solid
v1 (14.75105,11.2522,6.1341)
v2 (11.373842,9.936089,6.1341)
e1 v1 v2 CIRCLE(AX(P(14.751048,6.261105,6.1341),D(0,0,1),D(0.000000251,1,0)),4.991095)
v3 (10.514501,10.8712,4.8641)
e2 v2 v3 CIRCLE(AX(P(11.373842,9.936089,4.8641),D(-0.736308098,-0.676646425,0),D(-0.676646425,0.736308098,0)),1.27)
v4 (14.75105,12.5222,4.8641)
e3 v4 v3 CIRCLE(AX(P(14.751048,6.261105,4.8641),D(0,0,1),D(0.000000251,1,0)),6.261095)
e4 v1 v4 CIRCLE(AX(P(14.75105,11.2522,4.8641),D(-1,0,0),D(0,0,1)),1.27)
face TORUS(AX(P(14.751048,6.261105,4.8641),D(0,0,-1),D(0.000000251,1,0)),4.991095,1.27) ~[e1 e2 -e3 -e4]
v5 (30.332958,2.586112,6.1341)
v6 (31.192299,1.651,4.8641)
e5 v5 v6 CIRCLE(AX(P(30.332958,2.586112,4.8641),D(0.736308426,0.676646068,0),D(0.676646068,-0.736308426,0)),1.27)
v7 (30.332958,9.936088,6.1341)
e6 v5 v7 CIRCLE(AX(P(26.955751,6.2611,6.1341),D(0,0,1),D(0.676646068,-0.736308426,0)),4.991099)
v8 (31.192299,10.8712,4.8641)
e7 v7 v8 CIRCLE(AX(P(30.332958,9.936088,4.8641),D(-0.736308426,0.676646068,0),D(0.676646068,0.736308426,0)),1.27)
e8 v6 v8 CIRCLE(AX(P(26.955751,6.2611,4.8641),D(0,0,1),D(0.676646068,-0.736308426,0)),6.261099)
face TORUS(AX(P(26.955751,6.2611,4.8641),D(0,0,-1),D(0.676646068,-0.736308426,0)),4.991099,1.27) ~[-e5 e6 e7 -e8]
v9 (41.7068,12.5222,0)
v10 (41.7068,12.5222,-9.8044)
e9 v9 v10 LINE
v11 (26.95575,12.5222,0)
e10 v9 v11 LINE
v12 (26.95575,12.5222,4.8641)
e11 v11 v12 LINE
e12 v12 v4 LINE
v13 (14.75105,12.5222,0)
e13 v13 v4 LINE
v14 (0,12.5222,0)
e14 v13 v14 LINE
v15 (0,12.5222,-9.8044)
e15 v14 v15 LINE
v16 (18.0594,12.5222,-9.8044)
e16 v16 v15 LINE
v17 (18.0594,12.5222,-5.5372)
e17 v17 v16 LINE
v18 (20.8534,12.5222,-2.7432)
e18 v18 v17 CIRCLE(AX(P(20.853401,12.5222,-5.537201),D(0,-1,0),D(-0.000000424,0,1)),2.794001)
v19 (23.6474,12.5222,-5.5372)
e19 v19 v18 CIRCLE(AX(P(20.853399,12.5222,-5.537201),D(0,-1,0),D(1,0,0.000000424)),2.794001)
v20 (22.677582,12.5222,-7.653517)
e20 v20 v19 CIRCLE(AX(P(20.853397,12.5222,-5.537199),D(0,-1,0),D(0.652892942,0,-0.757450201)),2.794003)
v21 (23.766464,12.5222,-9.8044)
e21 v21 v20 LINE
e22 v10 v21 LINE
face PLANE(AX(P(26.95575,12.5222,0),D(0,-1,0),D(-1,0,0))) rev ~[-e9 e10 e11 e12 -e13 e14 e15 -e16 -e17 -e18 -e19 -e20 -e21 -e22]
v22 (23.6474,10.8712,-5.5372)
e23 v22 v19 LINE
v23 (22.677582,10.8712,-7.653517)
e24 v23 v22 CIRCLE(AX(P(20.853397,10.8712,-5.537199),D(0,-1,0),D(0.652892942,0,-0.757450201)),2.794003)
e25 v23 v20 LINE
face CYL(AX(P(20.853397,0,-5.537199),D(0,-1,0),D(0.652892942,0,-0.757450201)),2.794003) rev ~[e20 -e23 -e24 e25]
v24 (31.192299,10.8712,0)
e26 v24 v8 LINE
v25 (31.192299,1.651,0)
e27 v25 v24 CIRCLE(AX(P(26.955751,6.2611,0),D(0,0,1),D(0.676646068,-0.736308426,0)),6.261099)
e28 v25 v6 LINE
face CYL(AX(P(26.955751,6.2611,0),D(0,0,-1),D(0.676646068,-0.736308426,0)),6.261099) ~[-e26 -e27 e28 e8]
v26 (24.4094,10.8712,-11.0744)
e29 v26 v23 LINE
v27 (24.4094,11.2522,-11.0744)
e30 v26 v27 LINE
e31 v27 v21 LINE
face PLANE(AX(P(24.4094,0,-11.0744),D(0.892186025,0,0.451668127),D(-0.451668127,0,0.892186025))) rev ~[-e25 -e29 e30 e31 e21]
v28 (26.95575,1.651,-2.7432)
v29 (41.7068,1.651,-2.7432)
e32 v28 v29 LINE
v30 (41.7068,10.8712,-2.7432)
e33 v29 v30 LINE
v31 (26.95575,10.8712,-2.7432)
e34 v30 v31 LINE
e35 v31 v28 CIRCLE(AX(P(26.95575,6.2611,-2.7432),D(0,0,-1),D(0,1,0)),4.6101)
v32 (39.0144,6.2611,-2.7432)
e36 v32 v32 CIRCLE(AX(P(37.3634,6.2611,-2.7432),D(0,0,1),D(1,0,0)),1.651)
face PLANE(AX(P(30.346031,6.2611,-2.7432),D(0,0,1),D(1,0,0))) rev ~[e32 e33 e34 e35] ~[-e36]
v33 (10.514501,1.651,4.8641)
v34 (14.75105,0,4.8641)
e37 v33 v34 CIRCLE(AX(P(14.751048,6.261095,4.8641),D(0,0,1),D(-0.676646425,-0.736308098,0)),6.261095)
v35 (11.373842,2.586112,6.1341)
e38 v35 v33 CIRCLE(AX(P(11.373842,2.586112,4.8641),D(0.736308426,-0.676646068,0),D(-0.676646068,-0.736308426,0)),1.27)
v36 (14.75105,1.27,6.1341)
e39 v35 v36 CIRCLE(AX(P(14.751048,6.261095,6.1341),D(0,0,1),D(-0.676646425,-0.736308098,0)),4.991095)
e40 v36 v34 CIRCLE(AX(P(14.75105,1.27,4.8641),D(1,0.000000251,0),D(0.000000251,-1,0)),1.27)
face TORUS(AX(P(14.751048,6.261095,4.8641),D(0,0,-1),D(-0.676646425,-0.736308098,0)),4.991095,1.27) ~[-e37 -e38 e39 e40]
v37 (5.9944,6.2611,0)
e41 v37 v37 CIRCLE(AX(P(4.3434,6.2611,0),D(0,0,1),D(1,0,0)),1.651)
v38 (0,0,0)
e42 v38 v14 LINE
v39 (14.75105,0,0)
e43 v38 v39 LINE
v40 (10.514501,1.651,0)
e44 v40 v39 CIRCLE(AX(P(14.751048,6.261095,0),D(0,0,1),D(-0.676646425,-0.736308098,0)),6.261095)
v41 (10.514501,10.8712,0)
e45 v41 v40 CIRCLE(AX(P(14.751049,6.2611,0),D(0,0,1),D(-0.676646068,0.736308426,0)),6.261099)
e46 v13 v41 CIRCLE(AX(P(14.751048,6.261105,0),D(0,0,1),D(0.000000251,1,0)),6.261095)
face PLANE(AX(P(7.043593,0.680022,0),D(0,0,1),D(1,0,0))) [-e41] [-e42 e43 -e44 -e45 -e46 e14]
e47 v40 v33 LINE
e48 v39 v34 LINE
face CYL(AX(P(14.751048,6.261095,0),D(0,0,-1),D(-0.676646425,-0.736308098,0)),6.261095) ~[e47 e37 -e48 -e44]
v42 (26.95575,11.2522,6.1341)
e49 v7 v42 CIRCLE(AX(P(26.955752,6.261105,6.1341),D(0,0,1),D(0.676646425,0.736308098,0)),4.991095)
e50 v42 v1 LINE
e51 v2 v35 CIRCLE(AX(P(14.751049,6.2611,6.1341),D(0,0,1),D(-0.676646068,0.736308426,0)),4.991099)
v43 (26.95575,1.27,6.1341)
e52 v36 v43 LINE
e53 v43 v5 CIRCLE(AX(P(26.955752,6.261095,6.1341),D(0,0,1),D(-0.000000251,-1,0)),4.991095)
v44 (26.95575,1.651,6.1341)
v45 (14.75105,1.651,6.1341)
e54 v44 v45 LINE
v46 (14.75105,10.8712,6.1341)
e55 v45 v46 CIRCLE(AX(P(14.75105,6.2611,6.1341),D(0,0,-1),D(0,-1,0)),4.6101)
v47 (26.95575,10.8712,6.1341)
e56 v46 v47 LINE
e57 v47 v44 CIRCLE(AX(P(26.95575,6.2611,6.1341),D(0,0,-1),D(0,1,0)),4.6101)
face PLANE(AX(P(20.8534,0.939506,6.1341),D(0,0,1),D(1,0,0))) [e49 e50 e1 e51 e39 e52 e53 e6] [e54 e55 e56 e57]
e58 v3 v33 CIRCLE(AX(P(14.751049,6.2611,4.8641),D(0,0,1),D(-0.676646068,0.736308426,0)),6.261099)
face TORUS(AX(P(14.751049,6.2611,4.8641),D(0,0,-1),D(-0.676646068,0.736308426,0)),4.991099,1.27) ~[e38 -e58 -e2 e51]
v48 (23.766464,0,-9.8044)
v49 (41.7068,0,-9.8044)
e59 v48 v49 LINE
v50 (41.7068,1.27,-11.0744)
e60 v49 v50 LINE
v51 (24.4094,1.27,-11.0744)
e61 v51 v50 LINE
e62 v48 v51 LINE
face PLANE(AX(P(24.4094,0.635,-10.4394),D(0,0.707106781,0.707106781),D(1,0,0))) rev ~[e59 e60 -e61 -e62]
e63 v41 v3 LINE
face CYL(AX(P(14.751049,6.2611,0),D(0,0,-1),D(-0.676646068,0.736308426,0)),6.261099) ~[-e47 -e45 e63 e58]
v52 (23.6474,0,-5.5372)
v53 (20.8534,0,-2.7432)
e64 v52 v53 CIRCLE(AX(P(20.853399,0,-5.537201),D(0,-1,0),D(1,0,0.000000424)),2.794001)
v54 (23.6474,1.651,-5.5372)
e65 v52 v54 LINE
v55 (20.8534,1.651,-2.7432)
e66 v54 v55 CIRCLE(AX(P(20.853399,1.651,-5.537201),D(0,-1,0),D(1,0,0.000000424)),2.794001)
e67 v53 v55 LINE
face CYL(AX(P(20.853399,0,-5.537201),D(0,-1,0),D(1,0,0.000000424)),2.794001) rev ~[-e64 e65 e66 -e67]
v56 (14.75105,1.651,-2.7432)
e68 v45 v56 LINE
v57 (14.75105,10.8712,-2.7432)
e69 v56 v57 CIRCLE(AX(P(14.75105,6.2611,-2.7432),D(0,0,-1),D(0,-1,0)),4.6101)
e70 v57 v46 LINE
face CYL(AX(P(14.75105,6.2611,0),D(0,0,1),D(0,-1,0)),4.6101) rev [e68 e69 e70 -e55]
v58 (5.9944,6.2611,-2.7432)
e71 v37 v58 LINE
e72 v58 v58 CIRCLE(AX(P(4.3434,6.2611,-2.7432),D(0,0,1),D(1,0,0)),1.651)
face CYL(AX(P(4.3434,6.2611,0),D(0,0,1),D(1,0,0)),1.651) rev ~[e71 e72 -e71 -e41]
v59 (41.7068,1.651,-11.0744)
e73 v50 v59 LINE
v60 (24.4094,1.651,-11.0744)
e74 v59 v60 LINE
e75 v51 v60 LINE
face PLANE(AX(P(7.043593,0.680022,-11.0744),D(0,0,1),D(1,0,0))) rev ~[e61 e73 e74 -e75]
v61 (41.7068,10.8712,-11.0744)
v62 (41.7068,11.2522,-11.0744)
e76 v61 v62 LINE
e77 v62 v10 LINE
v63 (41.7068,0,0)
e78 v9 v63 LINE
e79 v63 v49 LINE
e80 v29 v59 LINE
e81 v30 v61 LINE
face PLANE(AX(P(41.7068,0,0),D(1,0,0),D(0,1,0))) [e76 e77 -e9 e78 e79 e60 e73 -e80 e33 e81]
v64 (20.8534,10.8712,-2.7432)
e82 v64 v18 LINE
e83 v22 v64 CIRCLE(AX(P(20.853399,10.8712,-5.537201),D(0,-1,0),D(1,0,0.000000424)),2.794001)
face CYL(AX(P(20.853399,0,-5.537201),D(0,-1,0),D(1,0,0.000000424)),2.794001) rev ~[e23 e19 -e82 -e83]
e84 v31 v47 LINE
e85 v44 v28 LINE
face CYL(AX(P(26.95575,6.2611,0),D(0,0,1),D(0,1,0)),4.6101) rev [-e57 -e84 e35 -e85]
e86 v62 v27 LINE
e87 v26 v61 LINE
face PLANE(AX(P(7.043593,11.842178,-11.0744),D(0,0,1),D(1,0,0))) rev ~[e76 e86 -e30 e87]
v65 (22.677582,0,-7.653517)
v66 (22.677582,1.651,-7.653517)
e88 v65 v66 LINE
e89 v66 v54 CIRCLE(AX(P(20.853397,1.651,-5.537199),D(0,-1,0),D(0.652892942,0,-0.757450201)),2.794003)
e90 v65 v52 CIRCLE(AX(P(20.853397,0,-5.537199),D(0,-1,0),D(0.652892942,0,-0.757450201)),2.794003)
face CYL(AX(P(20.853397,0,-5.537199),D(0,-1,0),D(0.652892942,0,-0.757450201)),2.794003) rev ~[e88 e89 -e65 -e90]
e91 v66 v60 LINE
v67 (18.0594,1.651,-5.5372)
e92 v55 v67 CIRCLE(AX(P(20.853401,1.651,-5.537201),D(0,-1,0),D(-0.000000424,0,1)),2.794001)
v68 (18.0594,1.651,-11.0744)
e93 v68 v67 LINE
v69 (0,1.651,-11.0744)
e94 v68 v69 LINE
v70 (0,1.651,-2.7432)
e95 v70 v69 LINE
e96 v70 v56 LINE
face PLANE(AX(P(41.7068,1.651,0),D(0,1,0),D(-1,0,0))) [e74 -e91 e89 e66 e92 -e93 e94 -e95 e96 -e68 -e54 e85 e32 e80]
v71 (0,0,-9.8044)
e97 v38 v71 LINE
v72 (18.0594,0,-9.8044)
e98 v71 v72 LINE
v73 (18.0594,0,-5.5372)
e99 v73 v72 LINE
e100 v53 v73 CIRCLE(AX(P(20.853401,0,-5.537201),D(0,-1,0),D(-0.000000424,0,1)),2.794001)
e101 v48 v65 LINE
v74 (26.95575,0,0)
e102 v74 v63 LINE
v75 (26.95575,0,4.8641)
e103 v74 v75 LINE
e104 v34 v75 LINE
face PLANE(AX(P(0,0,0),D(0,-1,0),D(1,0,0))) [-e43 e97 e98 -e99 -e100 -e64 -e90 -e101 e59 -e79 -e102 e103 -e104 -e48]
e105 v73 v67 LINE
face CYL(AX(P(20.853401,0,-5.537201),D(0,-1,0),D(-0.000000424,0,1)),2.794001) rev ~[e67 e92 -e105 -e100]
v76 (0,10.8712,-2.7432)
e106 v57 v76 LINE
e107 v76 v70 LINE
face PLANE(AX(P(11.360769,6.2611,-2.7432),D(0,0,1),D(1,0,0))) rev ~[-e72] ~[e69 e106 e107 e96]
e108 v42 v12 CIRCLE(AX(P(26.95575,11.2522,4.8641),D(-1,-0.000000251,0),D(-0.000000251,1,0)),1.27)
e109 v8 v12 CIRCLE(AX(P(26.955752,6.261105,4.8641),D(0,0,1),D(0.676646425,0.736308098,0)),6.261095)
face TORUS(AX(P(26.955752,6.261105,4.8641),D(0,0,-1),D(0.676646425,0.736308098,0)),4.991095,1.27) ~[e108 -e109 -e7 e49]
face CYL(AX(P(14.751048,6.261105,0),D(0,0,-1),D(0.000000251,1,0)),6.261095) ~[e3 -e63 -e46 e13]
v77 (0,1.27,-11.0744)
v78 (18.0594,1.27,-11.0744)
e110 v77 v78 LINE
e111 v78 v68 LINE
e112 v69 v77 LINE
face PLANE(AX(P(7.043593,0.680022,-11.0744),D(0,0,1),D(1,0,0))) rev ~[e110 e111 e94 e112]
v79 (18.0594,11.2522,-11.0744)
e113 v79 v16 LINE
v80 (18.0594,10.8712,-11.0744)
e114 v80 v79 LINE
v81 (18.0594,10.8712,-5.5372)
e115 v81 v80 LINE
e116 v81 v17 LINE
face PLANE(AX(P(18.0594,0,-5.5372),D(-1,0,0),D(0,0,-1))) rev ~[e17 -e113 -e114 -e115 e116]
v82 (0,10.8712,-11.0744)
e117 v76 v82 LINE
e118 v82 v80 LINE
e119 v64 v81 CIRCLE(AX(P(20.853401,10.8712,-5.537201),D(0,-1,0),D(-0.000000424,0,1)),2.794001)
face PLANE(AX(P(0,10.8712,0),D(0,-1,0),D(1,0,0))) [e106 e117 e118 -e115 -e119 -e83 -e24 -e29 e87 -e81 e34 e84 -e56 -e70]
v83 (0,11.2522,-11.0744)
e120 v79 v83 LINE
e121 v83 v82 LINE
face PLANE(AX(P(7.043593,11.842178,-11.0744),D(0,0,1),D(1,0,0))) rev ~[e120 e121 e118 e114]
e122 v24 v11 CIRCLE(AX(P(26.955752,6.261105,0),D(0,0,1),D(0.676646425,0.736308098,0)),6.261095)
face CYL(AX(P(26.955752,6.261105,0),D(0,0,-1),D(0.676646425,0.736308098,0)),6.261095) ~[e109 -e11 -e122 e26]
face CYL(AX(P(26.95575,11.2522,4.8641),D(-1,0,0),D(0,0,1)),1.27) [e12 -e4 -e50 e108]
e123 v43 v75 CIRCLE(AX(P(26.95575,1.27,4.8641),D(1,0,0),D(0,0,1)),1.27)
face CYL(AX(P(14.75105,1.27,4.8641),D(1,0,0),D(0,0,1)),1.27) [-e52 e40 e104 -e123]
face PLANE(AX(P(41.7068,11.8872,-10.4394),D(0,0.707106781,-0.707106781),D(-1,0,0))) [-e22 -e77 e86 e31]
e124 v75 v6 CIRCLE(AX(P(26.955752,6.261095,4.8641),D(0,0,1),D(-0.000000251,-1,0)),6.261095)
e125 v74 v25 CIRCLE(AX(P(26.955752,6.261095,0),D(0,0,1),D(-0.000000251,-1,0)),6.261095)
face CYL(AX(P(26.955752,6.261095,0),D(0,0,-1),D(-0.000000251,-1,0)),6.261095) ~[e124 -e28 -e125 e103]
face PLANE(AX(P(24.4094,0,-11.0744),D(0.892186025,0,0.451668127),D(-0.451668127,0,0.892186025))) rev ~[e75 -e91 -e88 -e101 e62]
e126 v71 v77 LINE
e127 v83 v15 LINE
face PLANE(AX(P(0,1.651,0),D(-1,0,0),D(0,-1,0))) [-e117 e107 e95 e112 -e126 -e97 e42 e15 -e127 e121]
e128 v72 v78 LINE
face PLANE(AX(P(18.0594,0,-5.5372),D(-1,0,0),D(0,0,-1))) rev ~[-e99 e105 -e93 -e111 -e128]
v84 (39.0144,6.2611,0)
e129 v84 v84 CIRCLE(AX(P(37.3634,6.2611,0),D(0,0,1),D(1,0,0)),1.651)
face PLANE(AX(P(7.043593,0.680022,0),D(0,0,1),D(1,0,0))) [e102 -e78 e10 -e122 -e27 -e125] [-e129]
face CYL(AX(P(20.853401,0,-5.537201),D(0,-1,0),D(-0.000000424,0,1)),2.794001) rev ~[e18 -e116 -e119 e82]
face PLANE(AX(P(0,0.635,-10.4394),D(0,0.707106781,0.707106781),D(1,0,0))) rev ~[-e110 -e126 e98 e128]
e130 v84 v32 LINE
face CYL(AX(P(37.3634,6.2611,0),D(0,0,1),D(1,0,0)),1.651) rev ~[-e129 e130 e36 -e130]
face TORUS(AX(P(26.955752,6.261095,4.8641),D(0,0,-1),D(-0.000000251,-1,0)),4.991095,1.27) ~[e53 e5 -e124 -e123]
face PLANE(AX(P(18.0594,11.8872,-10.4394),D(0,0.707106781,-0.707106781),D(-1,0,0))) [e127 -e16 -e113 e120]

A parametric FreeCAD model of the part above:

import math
import FreeCAD as App
import Part
import Sketcher
Q = App.Units.Quantity


def edges_at(feature, points):
    """Names of the edges that pass closest to the given points."""
    edges = feature.Shape.Edges
    near = lambda p: min(range(len(edges)), key=lambda i: edges[i].distToShape(Part.Vertex(*p))[0])
    return sorted({f"Edge{near(p) + 1}" for p in points})


def add_polygon(sketch, points):
    """Adds a closed chain of lines whose ends are joined by coincident constraints."""
    first, n = sketch.GeometryCount, len(points)
    for a, b in zip(points, points[1:] + points[:1]):
        sketch.addGeometry(Part.LineSegment(App.Vector(*a, 0), App.Vector(*b, 0)), False)
    for i in range(n):
        sketch.addConstraint(Sketcher.Constraint("Coincident", first + i, 2, first + (i + 1) % n, 1))

doc = App.newDocument("Part")
body = doc.addObject("PartDesign::Body", "Body")

sketch1 = doc.addObject("Sketcher::SketchObject", "Sketch")
body.addObject(sketch1)
sketch1.AttachmentSupport = (doc.XY_Plane, [""])
sketch1.MapMode = "FlatFace"
sketch1.addGeometry([
    Part.ArcOfCircle(Part.Circle(App.Vector(14.8, 6.3, 0), App.Vector(0, 0, 1), 6.3), math.radians(-133), math.radians(-90)),
    Part.LineSegment(App.Vector(14.8, 0, 0), App.Vector(27, 0, 0)),
    Part.ArcOfCircle(Part.Circle(App.Vector(27, 6.3, 0), App.Vector(0, 0, 1), 6.3), math.radians(-90), math.radians(-47)),
    Part.ArcOfCircle(Part.Circle(App.Vector(27, 6.3, 0), App.Vector(0, 0, 1), 6.3), math.radians(-47), math.radians(47)),
    Part.ArcOfCircle(Part.Circle(App.Vector(27, 6.3, 0), App.Vector(0, 0, 1), 6.3), math.radians(47), math.radians(90)),
    Part.LineSegment(App.Vector(27, 12.5, 0), App.Vector(14.8, 12.5, 0)),
    Part.ArcOfCircle(Part.Circle(App.Vector(14.8, 6.3, 0), App.Vector(0, 0, 1), 6.3), math.radians(90), math.radians(133)),
    Part.ArcOfCircle(Part.Circle(App.Vector(14.8, 6.3, 0), App.Vector(0, 0, 1), 6.3), math.radians(133), math.radians(227)),
    Part.LineSegment(App.Vector(27, 1.7, 0), App.Vector(14.8, 1.7, 0)),
    Part.ArcOfCircle(Part.Circle(App.Vector(14.8, 6.3, 0), App.Vector(0, 0, 1), 4.6), math.radians(90), math.radians(270)),
    Part.LineSegment(App.Vector(14.8, 10.9, 0), App.Vector(27, 10.9, 0)),
    Part.ArcOfCircle(Part.Circle(App.Vector(27, 6.3, 0), App.Vector(0, 0, 1), 4.6), math.radians(-90), math.radians(90)),
], False)
sketch1.addConstraint([
    Sketcher.Constraint("Tangent", 0, 2, 1, 1),
    Sketcher.Constraint("Tangent", 1, 2, 2, 1),
    Sketcher.Constraint("Tangent", 2, 2, 3, 1),
    Sketcher.Constraint("Tangent", 3, 2, 4, 1),
    Sketcher.Constraint("Tangent", 4, 2, 5, 1),
    Sketcher.Constraint("Tangent", 5, 2, 6, 1),
    Sketcher.Constraint("Tangent", 6, 2, 7, 1),
    Sketcher.Constraint("Tangent", 7, 2, 0, 1),
    Sketcher.Constraint("Tangent", 8, 2, 9, 2),
    Sketcher.Constraint("Tangent", 9, 1, 10, 1),
    Sketcher.Constraint("Tangent", 10, 2, 11, 2),
    Sketcher.Constraint("Tangent", 11, 1, 8, 1),
    Sketcher.Constraint("Horizontal", 1),
    Sketcher.Constraint("Horizontal", 5),
    Sketcher.Constraint("Horizontal", 8),
    Sketcher.Constraint("Horizontal", 10),
    Sketcher.Constraint("Coincident", 9, 3, 0, 3),
    Sketcher.Constraint("Coincident", 11, 3, 2, 3),
    Sketcher.Constraint("Equal", 2, 4),
    Sketcher.Constraint("Equal", 4, 6),
    Sketcher.Constraint("PointOnObject", 0, 2, -1),
    Sketcher.Constraint("Horizontal", 3, 3, 9, 3),
    Sketcher.Constraint("Horizontal", 3, 2, 6, 2),
    Sketcher.Constraint("Horizontal", 2, 2, 7, 2),
    Sketcher.Constraint("Horizontal", 7, 2, 8, 2),
    Sketcher.Constraint("Horizontal", 6, 2, 9, 1),
    Sketcher.Constraint("Radius", 3, Q("0.2465 in")),
    Sketcher.Constraint("Radius", 9, Q("0.1815 in")),
    Sketcher.Constraint("DistanceX", 1, 1, 1, 2, Q("0.4805 in")),
    Sketcher.Constraint("DistanceX", -1, 1, 2, 2, 31.192299),
])
pad1 = doc.addObject("PartDesign::Pad", "Pad")
body.addObject(pad1)
pad1.Profile = sketch1
pad1.Length = Q("0.2415 in")

sketch2 = doc.addObject("Sketcher::SketchObject", "Sketch001")
body.addObject(sketch2)
sketch2.AttachmentSupport = (doc.XY_Plane, [""])
sketch2.MapMode = "FlatFace"
add_polygon(sketch2, [(0, 1.7), (0, 0), (41.7, 0), (41.7, 1.7)])
add_polygon(sketch2, [(0, 12.5), (0, 10.9), (41.7, 10.9), (41.7, 12.5)])
sketch2.addConstraint([
    Sketcher.Constraint("Vertical", 0),
    Sketcher.Constraint("Horizontal", 1),
    Sketcher.Constraint("Vertical", 2),
    Sketcher.Constraint("Horizontal", 3),
    Sketcher.Constraint("Vertical", 4),
    Sketcher.Constraint("Horizontal", 5),
    Sketcher.Constraint("Vertical", 6),
    Sketcher.Constraint("Horizontal", 7),
    Sketcher.Constraint("Coincident", 0, 2, -1, 1),
    Sketcher.Constraint("PointOnObject", 4, 2, -2),
    Sketcher.Constraint("Vertical", 2, 2, 5, 2),
    Sketcher.Constraint("Equal", 2, 4),
    Sketcher.Constraint("DistanceX", 1, 1, 1, 2, Q("1.642 in")),
    Sketcher.Constraint("DistanceY", 0, 2, 0, 1, Q("0.065 in")),
    Sketcher.Constraint("DistanceY", -1, 1, 4, 2, Q("0.428 in")),
])
pad2 = doc.addObject("PartDesign::Pad", "Pad001")
body.addObject(pad2)
pad2.Profile = sketch2
pad2.Length = Q("0.436 in")
pad2.Reversed = True

sketch3 = doc.addObject("Sketcher::SketchObject", "Sketch002")
body.addObject(sketch3)
sketch3.AttachmentSupport = (doc.XY_Plane, [""])
sketch3.MapMode = "FlatFace"
sketch3.addGeometry([
    Part.LineSegment(App.Vector(14.8, 10.9, 0), App.Vector(0, 10.9, 0)),
    Part.LineSegment(App.Vector(0, 10.9, 0), App.Vector(0, 1.7, 0)),
    Part.LineSegment(App.Vector(0, 1.7, 0), App.Vector(14.8, 1.7, 0)),
    Part.ArcOfCircle(Part.Circle(App.Vector(14.8, 6.3, 0), App.Vector(0, 0, 1), 4.6), math.radians(90), math.radians(270)),
    Part.Circle(App.Vector(4.3, 6.3, 0), App.Vector(0, 0, 1), 1.7),
    Part.ArcOfCircle(Part.Circle(App.Vector(27, 6.3, 0), App.Vector(0, 0, 1), 4.6), math.radians(-90), math.radians(90)),
    Part.LineSegment(App.Vector(27, 1.7, 0), App.Vector(41.7, 1.7, 0)),
    Part.LineSegment(App.Vector(41.7, 1.7, 0), App.Vector(41.7, 10.9, 0)),
    Part.LineSegment(App.Vector(41.7, 10.9, 0), App.Vector(27, 10.9, 0)),
    Part.Circle(App.Vector(37.4, 6.3, 0), App.Vector(0, 0, 1), 1.7),
], False)
sketch3.addConstraint([
    Sketcher.Constraint("Coincident", 0, 2, 1, 1),
    Sketcher.Constraint("Coincident", 1, 2, 2, 1),
    Sketcher.Constraint("Tangent", 2, 2, 3, 2),
    Sketcher.Constraint("Tangent", 3, 1, 0, 1),
    Sketcher.Constraint("Tangent", 5, 1, 6, 1),
    Sketcher.Constraint("Coincident", 6, 2, 7, 1),
    Sketcher.Constraint("Coincident", 7, 2, 8, 1),
    Sketcher.Constraint("Tangent", 8, 2, 5, 2),
    Sketcher.Constraint("Horizontal", 0),
    Sketcher.Constraint("Vertical", 1),
    Sketcher.Constraint("Horizontal", 2),
    Sketcher.Constraint("Horizontal", 6),
    Sketcher.Constraint("Vertical", 7),
    Sketcher.Constraint("Horizontal", 8),
    Sketcher.Constraint("Equal", 3, 5),
    Sketcher.Constraint("Equal", 4, 9),
    Sketcher.Constraint("PointOnObject", 0, 2, -2),
    Sketcher.Constraint("Horizontal", 3, 3, 4, 3),
    Sketcher.Constraint("Horizontal", 4, 3, 5, 3),
    Sketcher.Constraint("Horizontal", 5, 3, 9, 3),
    Sketcher.Constraint("Equal", 2, 6),
    Sketcher.Constraint("Diameter", 4, Q("0.13 in")),
    Sketcher.Constraint("Radius", 3, Q("0.1815 in")),
    Sketcher.Constraint("DistanceX", 4, 3, 9, 3, Q("1.3 in")),
    Sketcher.Constraint("DistanceX", -1, 1, 4, 3, Q("0.171 in")),
    Sketcher.Constraint("DistanceY", -1, 1, 0, 2, Q("0.428 in")),
    Sketcher.Constraint("DistanceX", -1, 1, 6, 2, Q("1.642 in")),
    Sketcher.Constraint("DistanceX", 3, 3, 5, 3, Q("0.4805 in")),
])
pad3 = doc.addObject("PartDesign::Pad", "Pad002")
body.addObject(pad3)
pad3.Profile = sketch3
pad3.Length = Q("0.108 in")
pad3.Reversed = True

sketch4 = doc.addObject("Sketcher::SketchObject", "Sketch003")
body.addObject(sketch4)
sketch4.AttachmentSupport = (doc.XZ_Plane, [""])
sketch4.MapMode = "FlatFace"
sketch4.addGeometry([
    Part.ArcOfCircle(Part.Circle(App.Vector(20.9, -5.5, 0), App.Vector(0, 0, 1), 2.8), math.radians(0), math.radians(90)),
    Part.ArcOfCircle(Part.Circle(App.Vector(20.9, -5.5, 0), App.Vector(0, 0, 1), 2.8), math.radians(90), math.radians(180)),
    Part.LineSegment(App.Vector(18.1, -5.5, 0), App.Vector(18.1, -11.1, 0)),
    Part.LineSegment(App.Vector(18.1, -11.1, 0), App.Vector(24.4, -11.1, 0)),
    Part.LineSegment(App.Vector(24.4, -11.1, 0), App.Vector(22.7, -7.7, 0)),
    Part.ArcOfCircle(Part.Circle(App.Vector(20.9, -5.5, 0), App.Vector(0, 0, 1), 2.8), math.radians(-49), math.radians(0)),
], False)
sketch4.addConstraint([
    Sketcher.Constraint("Tangent", 0, 2, 1, 1),
    Sketcher.Constraint("Tangent", 1, 2, 2, 1),
    Sketcher.Constraint("Coincident", 2, 2, 3, 1),
    Sketcher.Constraint("Coincident", 3, 2, 4, 1),
    Sketcher.Constraint("Coincident", 4, 2, 5, 1),
    Sketcher.Constraint("Tangent", 5, 2, 0, 1),
    Sketcher.Constraint("Vertical", 2),
    Sketcher.Constraint("Horizontal", 3),
    Sketcher.Constraint("Equal", 0, 1),
    Sketcher.Constraint("Equal", 1, 5),
    Sketcher.Constraint("Horizontal", 1, 2, 5, 2),
    Sketcher.Constraint("Vertical", 1, 3, 0, 2),
    Sketcher.Constraint("Radius", 0, Q("0.11 in")),
    Sketcher.Constraint("DistanceX", 3, 1, 3, 2, Q("0.25 in")),
    Sketcher.Constraint("DistanceY", 2, 2, 2, 1, Q("0.218 in")),
    Sketcher.Constraint("DistanceX", -1, 1, 0, 3, Q("0.821 in")),
    Sketcher.Constraint("DistanceY", 0, 3, -1, 1, Q("0.218 in")),
    Sketcher.Constraint("Distance", 4, 3.834271),
])
pocket1 = doc.addObject("PartDesign::Pocket", "Pocket")
body.addObject(pocket1)
pocket1.Profile = sketch4
pocket1.Type = "ThroughAll"
doc.recompute()

chamfer = doc.addObject("PartDesign::Chamfer", "Chamfer")
body.addObject(chamfer)
chamfer.Base = (pocket1, edges_at(pocket1, [
    (33.058, 0, -11.074),
    (9.03, 0, -11.074),
    (33.058, 12.522, -11.074),
    (9.03, 12.522, -11.074),
]))
chamfer.Size = Q("0.05 in")
doc.recompute()

fillet = doc.addObject("PartDesign::Fillet", "Fillet")
body.addObject(fillet)
fillet.Base = (chamfer, edges_at(chamfer, [(33.217, 6.261, 6.134), (20.853, 12.522, 6.134)]))
fillet.Radius = Q("0.05 in")

doc.recompute()
